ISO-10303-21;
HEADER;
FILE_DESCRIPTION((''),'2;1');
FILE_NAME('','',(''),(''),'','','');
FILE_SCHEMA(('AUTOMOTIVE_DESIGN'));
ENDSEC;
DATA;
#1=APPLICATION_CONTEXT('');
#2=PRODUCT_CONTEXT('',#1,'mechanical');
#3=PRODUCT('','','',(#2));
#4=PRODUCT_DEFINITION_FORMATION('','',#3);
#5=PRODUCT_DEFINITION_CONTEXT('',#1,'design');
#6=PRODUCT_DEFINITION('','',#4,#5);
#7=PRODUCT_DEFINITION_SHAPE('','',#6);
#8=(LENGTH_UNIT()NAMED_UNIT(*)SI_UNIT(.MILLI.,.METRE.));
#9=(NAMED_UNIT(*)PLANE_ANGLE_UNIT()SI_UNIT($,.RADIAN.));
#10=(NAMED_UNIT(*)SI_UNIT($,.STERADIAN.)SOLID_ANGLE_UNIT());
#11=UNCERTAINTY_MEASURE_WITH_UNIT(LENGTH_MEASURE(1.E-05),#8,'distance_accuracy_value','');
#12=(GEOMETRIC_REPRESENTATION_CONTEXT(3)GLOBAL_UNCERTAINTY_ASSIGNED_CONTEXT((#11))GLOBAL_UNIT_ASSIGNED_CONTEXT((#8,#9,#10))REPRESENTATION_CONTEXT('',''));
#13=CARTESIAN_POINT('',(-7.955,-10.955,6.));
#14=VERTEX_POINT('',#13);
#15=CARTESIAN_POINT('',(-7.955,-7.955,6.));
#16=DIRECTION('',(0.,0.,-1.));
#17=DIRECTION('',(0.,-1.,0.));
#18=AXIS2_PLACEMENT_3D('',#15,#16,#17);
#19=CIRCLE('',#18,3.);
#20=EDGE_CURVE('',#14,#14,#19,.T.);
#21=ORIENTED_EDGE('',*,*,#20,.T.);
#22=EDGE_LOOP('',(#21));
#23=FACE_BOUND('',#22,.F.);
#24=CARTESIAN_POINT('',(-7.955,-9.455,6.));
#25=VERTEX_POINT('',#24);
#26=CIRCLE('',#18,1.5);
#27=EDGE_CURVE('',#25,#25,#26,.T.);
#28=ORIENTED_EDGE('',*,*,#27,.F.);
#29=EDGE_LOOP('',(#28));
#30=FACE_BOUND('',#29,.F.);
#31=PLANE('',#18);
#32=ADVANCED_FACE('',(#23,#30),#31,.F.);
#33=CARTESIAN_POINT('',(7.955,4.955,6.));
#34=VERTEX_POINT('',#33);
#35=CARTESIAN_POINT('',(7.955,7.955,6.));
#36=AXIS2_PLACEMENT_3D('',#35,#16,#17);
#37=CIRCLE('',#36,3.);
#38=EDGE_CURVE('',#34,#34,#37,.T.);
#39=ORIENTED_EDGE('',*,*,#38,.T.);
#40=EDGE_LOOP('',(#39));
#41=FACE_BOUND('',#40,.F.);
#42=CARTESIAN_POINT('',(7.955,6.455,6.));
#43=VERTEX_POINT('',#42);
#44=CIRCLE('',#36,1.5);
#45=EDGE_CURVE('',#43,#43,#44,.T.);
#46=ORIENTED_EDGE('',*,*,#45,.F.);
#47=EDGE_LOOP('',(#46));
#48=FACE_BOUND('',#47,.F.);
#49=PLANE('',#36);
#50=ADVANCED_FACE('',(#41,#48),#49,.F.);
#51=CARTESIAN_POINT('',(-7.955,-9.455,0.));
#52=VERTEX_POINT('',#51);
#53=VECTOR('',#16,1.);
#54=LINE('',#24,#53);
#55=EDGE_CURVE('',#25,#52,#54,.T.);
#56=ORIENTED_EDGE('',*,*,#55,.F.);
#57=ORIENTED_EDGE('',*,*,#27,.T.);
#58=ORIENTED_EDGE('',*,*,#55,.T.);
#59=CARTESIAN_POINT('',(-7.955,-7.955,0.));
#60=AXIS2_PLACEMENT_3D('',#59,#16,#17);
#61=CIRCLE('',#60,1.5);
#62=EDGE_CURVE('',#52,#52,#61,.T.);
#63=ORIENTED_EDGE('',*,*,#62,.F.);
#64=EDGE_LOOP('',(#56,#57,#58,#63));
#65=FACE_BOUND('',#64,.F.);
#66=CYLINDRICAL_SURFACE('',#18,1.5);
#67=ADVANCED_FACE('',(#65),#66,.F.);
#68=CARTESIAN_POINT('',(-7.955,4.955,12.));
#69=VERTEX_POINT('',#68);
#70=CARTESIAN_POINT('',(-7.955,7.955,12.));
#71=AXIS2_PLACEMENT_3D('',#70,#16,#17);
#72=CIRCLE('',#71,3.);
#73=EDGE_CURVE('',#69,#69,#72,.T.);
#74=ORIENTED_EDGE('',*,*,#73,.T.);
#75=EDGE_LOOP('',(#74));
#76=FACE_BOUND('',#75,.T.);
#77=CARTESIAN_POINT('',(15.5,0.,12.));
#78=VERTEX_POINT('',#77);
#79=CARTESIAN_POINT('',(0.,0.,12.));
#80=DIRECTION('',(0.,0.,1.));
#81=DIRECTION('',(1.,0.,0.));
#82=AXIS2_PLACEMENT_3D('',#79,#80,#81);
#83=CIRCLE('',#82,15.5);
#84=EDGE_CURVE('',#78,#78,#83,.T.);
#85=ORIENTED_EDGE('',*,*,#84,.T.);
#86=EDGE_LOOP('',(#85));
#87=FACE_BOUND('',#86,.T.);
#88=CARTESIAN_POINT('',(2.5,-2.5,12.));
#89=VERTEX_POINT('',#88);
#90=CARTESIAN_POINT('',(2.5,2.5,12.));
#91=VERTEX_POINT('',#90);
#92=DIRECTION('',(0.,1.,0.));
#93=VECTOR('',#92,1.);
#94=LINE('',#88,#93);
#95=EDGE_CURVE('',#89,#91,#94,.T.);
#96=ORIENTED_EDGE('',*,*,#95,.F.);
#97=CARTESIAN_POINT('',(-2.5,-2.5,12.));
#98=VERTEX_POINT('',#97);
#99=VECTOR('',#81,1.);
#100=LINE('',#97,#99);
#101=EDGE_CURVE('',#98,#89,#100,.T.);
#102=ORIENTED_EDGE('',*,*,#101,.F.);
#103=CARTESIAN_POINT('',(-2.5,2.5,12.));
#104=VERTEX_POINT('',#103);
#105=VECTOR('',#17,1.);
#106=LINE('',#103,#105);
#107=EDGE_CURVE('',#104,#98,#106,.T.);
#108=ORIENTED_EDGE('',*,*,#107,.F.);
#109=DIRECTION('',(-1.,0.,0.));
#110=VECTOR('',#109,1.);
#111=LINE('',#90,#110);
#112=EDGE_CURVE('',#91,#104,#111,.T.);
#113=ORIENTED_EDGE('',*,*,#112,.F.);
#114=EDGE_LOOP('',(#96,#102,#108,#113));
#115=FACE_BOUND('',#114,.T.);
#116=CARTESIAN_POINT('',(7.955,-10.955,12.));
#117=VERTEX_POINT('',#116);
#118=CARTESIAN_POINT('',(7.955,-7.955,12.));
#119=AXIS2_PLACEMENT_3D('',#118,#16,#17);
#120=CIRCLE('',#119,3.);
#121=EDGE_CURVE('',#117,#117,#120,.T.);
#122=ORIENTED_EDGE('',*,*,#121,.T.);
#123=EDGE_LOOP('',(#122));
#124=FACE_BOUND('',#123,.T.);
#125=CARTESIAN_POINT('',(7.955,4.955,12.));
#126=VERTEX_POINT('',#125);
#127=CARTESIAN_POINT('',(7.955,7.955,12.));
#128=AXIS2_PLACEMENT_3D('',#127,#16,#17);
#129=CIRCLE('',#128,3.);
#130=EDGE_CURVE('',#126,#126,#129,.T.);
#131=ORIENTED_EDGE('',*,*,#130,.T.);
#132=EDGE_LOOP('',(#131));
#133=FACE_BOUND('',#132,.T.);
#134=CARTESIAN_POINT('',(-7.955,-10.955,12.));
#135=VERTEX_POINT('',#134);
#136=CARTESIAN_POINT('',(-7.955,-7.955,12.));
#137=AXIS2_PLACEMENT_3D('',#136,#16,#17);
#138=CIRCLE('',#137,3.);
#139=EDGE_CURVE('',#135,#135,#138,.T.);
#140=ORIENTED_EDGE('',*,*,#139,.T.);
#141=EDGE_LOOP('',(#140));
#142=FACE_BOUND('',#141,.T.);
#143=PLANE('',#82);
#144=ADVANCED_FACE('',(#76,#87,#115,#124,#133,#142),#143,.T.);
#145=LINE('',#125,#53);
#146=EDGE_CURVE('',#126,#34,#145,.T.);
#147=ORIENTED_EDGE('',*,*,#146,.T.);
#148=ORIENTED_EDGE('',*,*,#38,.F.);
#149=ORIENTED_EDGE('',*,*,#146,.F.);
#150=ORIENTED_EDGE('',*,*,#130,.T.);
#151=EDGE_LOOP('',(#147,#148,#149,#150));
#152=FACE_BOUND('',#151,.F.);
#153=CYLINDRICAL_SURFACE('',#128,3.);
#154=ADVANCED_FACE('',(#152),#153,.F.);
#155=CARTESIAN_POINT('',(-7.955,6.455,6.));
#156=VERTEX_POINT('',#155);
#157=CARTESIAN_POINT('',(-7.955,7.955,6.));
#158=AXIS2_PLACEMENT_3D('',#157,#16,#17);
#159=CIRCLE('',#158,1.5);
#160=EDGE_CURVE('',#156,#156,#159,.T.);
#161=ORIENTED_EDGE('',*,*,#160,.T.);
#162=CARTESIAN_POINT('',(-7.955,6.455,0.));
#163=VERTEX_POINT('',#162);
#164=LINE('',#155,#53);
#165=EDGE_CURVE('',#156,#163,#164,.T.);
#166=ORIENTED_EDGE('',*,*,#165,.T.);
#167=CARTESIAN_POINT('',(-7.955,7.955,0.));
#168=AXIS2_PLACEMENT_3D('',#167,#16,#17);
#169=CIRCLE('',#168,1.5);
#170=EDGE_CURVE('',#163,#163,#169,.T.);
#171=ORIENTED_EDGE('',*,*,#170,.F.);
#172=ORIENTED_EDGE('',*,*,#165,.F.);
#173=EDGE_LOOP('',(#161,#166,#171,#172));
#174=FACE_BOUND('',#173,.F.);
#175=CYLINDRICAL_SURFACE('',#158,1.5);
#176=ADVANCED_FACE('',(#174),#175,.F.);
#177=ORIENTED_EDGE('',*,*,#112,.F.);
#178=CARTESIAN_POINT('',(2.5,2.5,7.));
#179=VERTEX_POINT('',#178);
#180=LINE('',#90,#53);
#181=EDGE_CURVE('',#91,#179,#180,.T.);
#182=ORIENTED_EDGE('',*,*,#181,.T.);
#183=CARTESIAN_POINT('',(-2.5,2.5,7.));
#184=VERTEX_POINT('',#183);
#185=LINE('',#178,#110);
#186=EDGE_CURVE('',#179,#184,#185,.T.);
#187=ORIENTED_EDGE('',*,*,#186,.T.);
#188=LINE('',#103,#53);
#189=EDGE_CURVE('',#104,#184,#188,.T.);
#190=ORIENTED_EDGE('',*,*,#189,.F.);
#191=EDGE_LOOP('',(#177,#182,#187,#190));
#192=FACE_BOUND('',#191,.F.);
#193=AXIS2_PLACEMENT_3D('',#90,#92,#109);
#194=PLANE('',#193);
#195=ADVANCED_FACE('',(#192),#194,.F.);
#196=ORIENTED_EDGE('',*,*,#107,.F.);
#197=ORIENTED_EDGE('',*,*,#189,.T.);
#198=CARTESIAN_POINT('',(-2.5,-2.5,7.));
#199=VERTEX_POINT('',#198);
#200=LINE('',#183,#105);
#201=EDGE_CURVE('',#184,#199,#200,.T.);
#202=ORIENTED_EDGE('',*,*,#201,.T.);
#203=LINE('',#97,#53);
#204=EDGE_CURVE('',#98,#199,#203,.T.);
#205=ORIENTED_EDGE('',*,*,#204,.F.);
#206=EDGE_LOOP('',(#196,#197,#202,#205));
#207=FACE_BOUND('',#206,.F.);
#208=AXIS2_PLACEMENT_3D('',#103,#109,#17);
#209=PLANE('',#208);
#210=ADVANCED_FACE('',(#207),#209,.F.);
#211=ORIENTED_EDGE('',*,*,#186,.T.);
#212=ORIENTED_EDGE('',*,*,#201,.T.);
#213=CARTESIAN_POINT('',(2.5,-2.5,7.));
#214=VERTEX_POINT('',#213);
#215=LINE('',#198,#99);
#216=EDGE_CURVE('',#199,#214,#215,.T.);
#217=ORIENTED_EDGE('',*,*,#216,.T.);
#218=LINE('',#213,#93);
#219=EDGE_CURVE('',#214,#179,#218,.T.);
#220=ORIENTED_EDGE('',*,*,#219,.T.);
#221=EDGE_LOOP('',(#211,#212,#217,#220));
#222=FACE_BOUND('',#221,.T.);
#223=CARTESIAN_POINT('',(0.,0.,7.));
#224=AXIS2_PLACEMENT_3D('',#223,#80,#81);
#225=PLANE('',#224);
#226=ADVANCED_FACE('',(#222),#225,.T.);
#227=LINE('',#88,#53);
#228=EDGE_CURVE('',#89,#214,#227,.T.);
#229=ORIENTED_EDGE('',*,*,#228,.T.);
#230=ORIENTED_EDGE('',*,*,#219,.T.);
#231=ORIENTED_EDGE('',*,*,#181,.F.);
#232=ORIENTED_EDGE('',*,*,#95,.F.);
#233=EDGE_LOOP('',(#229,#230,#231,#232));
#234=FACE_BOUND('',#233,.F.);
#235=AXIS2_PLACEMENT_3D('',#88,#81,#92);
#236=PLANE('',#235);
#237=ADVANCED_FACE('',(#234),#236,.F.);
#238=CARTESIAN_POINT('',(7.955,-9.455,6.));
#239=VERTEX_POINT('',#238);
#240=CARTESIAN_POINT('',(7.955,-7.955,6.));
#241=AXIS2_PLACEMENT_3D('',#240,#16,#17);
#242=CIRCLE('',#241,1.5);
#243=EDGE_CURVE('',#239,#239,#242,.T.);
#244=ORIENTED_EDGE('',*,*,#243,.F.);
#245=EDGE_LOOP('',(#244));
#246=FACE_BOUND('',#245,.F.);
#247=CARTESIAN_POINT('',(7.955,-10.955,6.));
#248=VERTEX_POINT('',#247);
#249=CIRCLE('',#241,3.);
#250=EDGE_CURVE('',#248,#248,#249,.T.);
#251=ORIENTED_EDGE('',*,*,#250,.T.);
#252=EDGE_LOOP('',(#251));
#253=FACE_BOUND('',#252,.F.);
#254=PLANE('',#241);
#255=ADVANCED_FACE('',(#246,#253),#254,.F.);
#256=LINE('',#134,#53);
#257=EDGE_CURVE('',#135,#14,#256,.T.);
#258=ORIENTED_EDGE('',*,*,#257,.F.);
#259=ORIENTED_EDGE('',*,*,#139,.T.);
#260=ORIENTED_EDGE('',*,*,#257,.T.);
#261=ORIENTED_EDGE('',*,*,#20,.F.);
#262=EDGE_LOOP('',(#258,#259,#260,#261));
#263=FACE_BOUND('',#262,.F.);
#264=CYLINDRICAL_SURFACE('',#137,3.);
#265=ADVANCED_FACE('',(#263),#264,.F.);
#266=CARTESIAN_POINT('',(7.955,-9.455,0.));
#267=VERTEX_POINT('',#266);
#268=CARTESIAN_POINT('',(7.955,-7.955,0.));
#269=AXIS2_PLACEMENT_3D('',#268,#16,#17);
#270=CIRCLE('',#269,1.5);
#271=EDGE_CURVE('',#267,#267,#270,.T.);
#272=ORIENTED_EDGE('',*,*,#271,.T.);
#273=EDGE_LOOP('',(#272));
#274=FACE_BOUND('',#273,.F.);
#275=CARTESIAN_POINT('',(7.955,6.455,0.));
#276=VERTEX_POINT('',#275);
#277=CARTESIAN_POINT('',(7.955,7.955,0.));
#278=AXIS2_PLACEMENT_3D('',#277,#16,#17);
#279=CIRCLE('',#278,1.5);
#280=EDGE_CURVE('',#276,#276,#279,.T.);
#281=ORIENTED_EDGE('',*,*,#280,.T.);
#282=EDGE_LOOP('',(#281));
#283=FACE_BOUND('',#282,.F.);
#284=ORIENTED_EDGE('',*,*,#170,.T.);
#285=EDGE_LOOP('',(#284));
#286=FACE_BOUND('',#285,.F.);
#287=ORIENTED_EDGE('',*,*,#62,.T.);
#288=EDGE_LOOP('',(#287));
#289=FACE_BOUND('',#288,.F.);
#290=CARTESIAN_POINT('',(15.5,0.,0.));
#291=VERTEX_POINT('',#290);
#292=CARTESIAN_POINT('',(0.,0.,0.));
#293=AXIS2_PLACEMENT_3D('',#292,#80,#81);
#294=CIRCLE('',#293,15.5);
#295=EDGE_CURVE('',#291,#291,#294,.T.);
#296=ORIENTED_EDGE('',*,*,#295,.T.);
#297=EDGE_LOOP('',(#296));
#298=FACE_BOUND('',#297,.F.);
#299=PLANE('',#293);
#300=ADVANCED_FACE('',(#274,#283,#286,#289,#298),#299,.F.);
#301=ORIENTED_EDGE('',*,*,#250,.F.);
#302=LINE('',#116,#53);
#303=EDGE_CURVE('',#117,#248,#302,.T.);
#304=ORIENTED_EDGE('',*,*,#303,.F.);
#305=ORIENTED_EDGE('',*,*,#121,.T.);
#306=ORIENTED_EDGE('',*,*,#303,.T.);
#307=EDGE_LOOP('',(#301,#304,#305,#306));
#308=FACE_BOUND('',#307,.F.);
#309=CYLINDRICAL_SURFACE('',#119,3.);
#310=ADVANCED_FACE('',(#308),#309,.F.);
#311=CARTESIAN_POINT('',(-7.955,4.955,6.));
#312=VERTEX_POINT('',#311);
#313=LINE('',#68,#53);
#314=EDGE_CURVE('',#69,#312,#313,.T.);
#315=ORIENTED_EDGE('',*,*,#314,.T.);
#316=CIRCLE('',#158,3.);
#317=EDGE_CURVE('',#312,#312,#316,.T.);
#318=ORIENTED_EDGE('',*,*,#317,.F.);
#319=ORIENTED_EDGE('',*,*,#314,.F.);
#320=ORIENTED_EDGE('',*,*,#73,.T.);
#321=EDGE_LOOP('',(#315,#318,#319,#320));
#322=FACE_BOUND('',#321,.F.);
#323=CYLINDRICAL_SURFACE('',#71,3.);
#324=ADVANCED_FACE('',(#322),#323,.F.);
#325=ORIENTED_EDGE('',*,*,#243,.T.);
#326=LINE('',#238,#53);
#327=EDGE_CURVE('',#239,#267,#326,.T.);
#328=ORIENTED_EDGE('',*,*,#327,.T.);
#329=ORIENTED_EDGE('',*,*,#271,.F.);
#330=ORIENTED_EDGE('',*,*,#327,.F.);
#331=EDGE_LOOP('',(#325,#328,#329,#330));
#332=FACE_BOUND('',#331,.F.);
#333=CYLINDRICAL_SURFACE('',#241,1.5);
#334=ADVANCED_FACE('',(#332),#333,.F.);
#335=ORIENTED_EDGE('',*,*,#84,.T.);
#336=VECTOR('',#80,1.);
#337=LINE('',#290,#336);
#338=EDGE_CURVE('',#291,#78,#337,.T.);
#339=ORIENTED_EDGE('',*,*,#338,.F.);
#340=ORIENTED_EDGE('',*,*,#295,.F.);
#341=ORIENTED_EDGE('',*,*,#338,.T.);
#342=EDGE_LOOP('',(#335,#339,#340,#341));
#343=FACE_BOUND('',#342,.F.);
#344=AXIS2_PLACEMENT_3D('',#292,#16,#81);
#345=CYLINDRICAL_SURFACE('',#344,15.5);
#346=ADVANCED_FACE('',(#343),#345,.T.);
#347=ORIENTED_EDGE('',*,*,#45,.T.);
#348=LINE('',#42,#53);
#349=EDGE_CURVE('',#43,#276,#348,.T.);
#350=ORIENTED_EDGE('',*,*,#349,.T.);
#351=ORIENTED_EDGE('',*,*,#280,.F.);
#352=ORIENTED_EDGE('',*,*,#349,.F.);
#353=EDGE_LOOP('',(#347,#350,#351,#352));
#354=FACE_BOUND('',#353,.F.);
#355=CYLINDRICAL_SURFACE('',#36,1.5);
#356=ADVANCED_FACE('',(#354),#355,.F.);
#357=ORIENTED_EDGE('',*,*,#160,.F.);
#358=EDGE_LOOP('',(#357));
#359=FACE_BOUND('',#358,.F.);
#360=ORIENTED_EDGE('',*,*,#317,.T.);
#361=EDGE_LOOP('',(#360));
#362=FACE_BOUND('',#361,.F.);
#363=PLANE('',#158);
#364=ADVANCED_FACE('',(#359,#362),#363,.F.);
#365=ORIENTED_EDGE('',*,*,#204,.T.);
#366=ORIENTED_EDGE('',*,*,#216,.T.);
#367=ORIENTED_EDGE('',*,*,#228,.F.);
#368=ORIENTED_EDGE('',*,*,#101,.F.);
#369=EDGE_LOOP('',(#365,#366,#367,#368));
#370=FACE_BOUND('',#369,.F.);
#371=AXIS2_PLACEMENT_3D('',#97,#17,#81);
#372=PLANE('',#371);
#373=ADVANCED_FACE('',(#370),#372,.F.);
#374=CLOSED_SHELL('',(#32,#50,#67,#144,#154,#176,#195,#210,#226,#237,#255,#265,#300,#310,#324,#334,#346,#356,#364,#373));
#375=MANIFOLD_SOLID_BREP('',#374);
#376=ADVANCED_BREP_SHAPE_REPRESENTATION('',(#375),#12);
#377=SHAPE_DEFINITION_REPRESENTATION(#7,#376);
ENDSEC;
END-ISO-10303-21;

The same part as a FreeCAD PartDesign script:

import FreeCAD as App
import Part
import Sketcher

V = App.Vector
Q = App.Units.Quantity


def add_polygon(sketch, points):
    """Adds a closed chain of lines whose ends are joined by coincident constraints."""
    first, n = sketch.GeometryCount, len(points)
    for a, b in zip(points, points[1:] + points[:1]):
        sketch.addGeometry(Part.LineSegment(App.Vector(*a, 0), App.Vector(*b, 0)), False)
    for i in range(n):
        sketch.addConstraint(Sketcher.Constraint("Coincident", first + i, 2, first + (i + 1) % n, 1))

doc = App.newDocument("Part")
params = doc.addObject("Spreadsheet::Sheet", "Params")
for row, (alias, value) in enumerate([
    ("sketch1_diameter", "31 mm"),
    ("pad1_length", "12 mm"),
    ("sketch2_width", "5 mm"),
    ("pocket1_length", "5 mm"),
    ("sketch3_diameter", "3 mm"),
    ("hole_diameter", "3 mm"),
    ("hole_cbore_diameter", "6 mm"),
    ("hole_cbore_depth", "6 mm"),
], start=1):
    params.set(f"A{row}", alias)
    params.set(f"B{row}", "=" + value)
    params.setAlias(f"B{row}", alias)

body = doc.addObject("PartDesign::Body", "Body")

# Sketch on XY plane
sketch1 = body.newObject("Sketcher::SketchObject", "Sketch")
sketch1.AttachmentSupport = (doc.getObject("XY_Plane"), [""])
sketch1.MapMode = "FlatFace"
sketch1.addGeometry(Part.Circle(V(0, 0, 0), V(0, 0, 1), 15.5), False)
sketch1.addConstraint([
    Sketcher.Constraint("Coincident", 0, 3, -1, 1),
    Sketcher.Constraint("Diameter", 0, Q("31 mm")),
])
sketch1.setExpression("Constraints[1]", "Params.sketch1_diameter")
pad1 = body.newObject("PartDesign::Pad", "Pad")
pad1.Profile = sketch1
pad1.setExpression("Length", "Params.pad1_length")

# Sketch on XY plane
sketch2 = body.newObject("Sketcher::SketchObject", "Sketch001")
sketch2.AttachmentSupport = (doc.getObject("XY_Plane"), [""])
sketch2.MapMode = "FlatFace"
sketch2.AttachmentOffset = App.Placement(V(0, 0, 12), App.Rotation())
add_polygon(sketch2, [(-2.5, 2.5), (-2.5, -2.5), (2.5, -2.5), (2.5, 2.5)])  # lines 0-3
sketch2.addConstraint([
    Sketcher.Constraint("Vertical", 0),
    Sketcher.Constraint("Horizontal", 1),
    Sketcher.Constraint("Vertical", 2),
    Sketcher.Constraint("Horizontal", 3),
    Sketcher.Constraint("Symmetric", 0, 2, 2, 2, -1, 1),
    Sketcher.Constraint("Equal", 3, 0),
    Sketcher.Constraint("DistanceX", 1, 1, 1, 2, Q("5 mm")),
])
sketch2.setExpression("Constraints[10]", "Params.sketch2_width")
pocket1 = body.newObject("PartDesign::Pocket", "Pocket")
pocket1.Profile = sketch2
pocket1.setExpression("Length", "Params.pocket1_length")

# Sketch on XY plane
sketch3 = body.newObject("Sketcher::SketchObject", "Sketch002")
sketch3.AttachmentSupport = (doc.getObject("XY_Plane"), [""])
sketch3.MapMode = "FlatFace"
sketch3.AttachmentOffset = App.Placement(V(0, 0, 12), App.Rotation())
sketch3.addGeometry([
    Part.Circle(V(-7.955, -7.955, 0), V(0, 0, 1), 1.5),
    Part.Circle(V(7.955, -7.955, 0), V(0, 0, 1), 1.5),
    Part.Circle(V(7.955, 7.955, 0), V(0, 0, 1), 1.5),
    Part.Circle(V(-7.955, 7.955, 0), V(0, 0, 1), 1.5),
], False)
sketch3.addConstraint([
    Sketcher.Constraint("Equal", 0, 1),
    Sketcher.Constraint("Equal", 1, 2),
    Sketcher.Constraint("Equal", 2, 3),
    Sketcher.Constraint("Symmetric", 0, 3, 2, 3, -1, 1),
    Sketcher.Constraint("Symmetric", 1, 3, 3, 3, -1, 1),
    Sketcher.Constraint("Symmetric", 0, 3, 1, 3, -2),
    Sketcher.Constraint("Diameter", 0, Q("3 mm")),
    Sketcher.Constraint("DistanceX", 0, 3, 1, 3, Q("15.91 mm")),
    Sketcher.Constraint("DistanceY", 1, 3, 2, 3, Q("15.91 mm")),
])
sketch3.setExpression("Constraints[6]", "Params.sketch3_diameter")
doc.recompute()
hole = body.newObject("PartDesign::Hole", "Hole")
hole.Profile = sketch3
hole.ThreadType = "None"
hole.setExpression("Diameter", "Params.hole_diameter")
hole.DepthType = "ThroughAll"
hole.HoleCutType = "Counterbore"
hole.setExpression("HoleCutDiameter", "Params.hole_cbore_diameter")
hole.setExpression("HoleCutDepth", "Params.hole_cbore_depth")

doc.recompute()
